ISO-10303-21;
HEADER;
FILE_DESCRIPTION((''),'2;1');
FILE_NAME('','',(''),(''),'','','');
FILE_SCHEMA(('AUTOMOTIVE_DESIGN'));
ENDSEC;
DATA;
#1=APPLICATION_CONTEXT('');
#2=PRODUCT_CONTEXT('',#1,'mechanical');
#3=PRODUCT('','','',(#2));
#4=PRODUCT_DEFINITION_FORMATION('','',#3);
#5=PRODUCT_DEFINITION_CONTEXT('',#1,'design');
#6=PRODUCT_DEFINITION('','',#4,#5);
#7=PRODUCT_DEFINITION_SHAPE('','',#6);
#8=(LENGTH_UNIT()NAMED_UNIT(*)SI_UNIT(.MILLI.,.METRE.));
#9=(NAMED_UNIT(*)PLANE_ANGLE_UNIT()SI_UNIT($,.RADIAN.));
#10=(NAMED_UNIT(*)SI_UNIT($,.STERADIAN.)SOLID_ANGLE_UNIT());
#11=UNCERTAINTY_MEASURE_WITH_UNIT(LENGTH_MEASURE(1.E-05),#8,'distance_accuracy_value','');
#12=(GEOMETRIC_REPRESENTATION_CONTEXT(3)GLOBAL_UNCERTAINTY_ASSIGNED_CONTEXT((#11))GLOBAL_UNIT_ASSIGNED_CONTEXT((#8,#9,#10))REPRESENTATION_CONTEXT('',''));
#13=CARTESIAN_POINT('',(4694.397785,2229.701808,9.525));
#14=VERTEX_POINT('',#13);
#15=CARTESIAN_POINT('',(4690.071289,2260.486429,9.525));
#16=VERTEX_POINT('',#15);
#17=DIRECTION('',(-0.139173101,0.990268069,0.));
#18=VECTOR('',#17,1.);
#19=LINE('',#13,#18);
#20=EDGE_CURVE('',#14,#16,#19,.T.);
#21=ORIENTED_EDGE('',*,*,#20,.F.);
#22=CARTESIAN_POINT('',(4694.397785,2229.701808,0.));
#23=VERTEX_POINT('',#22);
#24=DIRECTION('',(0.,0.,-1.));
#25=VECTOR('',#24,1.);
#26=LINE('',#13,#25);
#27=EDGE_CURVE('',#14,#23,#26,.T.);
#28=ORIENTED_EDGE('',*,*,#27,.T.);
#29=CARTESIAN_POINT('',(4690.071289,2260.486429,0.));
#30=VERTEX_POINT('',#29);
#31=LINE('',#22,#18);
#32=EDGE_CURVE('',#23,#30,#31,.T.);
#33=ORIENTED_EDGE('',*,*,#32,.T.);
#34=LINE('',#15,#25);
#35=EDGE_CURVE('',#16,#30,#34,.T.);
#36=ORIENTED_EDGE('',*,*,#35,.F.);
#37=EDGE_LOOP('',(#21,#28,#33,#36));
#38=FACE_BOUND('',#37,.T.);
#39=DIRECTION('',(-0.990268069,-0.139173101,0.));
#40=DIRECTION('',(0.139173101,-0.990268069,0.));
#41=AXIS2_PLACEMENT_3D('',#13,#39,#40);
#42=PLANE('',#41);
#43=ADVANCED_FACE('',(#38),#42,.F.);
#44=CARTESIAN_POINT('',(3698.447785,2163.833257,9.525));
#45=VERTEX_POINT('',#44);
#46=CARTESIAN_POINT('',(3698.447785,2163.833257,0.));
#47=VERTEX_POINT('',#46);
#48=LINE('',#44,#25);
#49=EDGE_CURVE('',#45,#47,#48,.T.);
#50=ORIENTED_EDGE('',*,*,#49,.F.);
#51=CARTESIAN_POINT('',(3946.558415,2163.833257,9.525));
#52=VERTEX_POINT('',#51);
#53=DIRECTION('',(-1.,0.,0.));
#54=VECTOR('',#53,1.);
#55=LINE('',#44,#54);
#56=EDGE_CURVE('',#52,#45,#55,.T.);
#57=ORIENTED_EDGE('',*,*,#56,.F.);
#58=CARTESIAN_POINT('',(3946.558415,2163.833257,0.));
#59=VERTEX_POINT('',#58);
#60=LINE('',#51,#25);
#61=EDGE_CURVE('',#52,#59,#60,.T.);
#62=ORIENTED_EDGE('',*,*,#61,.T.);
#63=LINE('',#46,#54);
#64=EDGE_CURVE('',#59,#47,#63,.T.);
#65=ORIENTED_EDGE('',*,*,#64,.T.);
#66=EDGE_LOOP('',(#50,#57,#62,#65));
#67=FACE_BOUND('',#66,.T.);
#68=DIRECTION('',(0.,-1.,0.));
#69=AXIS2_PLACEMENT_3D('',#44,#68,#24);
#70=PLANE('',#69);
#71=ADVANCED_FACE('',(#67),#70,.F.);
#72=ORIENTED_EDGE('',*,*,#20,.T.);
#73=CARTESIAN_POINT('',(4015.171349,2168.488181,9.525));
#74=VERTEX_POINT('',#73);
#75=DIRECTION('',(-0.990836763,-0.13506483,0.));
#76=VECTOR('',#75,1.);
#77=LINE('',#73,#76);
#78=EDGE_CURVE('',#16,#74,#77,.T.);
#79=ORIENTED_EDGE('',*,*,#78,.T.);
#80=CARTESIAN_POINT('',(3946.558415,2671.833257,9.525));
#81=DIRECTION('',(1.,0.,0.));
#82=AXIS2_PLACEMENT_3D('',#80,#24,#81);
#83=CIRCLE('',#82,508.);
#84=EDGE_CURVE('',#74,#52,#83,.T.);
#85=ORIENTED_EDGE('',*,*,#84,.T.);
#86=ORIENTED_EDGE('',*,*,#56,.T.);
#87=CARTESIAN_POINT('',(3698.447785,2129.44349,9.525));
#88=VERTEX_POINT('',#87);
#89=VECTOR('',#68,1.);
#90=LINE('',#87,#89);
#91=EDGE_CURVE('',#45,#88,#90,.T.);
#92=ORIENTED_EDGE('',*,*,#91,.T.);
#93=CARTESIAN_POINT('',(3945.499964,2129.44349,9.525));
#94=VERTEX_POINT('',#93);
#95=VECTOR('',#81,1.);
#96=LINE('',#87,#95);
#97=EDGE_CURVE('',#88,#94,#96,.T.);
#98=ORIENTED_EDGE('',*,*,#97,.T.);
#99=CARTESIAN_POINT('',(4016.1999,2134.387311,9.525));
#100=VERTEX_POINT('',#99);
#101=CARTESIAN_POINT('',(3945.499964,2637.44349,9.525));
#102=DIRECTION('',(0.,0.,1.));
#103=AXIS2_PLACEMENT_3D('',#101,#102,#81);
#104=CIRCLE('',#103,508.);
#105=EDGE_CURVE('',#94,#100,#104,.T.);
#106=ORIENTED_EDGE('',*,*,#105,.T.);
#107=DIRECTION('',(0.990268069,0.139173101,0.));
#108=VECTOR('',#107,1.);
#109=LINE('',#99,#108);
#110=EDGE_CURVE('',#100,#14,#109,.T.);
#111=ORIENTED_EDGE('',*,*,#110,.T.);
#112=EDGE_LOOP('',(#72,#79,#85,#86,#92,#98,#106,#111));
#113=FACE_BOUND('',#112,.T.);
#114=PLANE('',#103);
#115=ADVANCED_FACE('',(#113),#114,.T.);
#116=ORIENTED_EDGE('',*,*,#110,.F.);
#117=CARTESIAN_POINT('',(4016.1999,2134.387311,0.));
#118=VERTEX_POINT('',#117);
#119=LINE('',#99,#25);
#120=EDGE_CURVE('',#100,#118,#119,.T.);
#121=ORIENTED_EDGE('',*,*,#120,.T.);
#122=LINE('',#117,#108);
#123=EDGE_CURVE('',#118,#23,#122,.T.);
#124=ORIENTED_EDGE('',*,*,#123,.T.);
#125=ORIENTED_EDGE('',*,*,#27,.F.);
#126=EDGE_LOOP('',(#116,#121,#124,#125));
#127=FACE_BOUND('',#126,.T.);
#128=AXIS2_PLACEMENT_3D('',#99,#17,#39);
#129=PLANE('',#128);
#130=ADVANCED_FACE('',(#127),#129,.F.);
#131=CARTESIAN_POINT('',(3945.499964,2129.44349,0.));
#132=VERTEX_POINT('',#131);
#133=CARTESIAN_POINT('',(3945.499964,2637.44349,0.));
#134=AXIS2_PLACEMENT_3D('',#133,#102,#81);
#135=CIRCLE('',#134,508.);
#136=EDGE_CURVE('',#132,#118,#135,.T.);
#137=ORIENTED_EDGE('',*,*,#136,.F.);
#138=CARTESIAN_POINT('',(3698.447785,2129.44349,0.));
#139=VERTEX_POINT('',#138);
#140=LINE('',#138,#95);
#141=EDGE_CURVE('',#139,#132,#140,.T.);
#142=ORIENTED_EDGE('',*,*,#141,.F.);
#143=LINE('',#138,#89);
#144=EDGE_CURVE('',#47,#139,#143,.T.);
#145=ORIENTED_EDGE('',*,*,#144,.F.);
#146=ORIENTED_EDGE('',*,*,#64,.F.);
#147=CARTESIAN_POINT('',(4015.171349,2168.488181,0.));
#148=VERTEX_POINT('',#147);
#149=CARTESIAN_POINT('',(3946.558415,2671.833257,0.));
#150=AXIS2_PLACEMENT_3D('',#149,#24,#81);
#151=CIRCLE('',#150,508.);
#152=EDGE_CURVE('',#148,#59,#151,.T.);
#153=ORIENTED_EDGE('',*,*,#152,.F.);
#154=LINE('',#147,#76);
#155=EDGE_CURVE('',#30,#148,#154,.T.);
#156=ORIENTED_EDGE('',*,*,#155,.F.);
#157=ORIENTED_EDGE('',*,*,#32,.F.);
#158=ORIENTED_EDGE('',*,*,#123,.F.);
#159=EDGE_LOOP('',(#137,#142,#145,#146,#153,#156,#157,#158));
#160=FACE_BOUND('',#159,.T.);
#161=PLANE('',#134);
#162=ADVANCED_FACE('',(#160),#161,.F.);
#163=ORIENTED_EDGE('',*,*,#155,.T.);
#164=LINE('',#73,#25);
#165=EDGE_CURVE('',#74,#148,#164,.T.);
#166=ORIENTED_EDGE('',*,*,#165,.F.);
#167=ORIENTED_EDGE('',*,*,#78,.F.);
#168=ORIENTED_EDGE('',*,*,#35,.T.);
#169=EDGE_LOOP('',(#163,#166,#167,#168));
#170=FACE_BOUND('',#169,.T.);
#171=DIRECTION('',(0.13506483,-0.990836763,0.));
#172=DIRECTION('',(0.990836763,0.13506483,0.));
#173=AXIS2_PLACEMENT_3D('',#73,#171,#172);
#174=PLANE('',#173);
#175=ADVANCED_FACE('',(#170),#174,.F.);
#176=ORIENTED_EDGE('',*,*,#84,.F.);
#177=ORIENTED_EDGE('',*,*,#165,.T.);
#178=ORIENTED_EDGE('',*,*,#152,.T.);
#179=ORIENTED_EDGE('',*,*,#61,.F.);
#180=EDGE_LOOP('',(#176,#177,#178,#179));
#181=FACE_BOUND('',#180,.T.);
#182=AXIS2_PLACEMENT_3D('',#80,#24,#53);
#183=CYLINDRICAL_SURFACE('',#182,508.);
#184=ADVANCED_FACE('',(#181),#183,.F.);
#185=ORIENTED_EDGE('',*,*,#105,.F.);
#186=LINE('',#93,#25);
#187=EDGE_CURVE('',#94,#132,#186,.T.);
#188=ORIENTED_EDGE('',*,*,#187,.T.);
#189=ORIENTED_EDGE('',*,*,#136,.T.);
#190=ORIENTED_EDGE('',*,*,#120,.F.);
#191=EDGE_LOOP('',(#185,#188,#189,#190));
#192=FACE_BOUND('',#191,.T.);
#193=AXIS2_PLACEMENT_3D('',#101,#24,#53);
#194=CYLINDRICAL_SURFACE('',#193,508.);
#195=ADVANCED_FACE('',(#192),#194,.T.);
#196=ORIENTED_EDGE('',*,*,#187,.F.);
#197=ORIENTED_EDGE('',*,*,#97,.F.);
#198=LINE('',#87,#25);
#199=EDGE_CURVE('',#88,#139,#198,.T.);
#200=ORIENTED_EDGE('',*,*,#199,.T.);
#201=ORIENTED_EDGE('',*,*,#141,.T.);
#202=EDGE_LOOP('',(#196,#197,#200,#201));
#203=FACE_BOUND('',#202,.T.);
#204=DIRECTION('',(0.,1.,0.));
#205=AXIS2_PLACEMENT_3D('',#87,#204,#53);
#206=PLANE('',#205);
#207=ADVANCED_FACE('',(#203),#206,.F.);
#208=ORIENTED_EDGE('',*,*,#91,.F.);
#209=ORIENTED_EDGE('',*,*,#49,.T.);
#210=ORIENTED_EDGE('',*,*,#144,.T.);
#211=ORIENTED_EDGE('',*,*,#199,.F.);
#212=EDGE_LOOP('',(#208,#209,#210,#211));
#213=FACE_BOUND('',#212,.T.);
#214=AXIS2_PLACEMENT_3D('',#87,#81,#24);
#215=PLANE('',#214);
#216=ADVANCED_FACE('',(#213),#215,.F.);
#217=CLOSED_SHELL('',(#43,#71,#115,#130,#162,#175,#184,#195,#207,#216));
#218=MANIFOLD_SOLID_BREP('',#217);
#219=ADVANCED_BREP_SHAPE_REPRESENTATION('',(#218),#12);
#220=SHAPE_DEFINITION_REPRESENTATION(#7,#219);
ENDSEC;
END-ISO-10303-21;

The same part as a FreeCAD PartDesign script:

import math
import FreeCAD as App
import Part
import Sketcher
Q = App.Units.Quantity

doc = App.newDocument("Part")
body = doc.addObject("PartDesign::Body", "Body")

sketch1 = body.newObject("Sketcher::SketchObject", "Sketch")
sketch1.AttachmentSupport = (doc.getObject("XY_Plane"), [""])
sketch1.MapMode = "FlatFace"
sketch1.addGeometry([
    Part.LineSegment(App.Vector(3698, 2164, 0), App.Vector(3698, 2129, 0)),
    Part.LineSegment(App.Vector(3698, 2129, 0), App.Vector(3945, 2129, 0)),
    Part.ArcOfCircle(Part.Circle(App.Vector(3945, 2637, 0), App.Vector(0, 0, 1), 508), math.radians(-90), math.radians(-82)),
    Part.LineSegment(App.Vector(4016, 2134, 0), App.Vector(4694, 2230, 0)),
    Part.LineSegment(App.Vector(4694, 2230, 0), App.Vector(4690, 2260, 0)),
    Part.LineSegment(App.Vector(4690, 2260, 0), App.Vector(4015, 2168, 0)),
    Part.ArcOfCircle(Part.Circle(App.Vector(3947, 2672, 0), App.Vector(0, 0, 1), 508), math.radians(-90), math.radians(-82.24)),
    Part.LineSegment(App.Vector(3947, 2164, 0), App.Vector(3698, 2164, 0)),
], False)
sketch1.addConstraint([
    Sketcher.Constraint("Coincident", 0, 2, 1, 1),
    Sketcher.Constraint("Tangent", 1, 2, 2, 1),
    Sketcher.Constraint("Tangent", 2, 2, 3, 1),
    Sketcher.Constraint("Coincident", 3, 2, 4, 1),
    Sketcher.Constraint("Coincident", 4, 2, 5, 1),
    Sketcher.Constraint("Tangent", 5, 2, 6, 2),
    Sketcher.Constraint("Tangent", 6, 1, 7, 1),
    Sketcher.Constraint("Coincident", 7, 2, 0, 1),
    Sketcher.Constraint("Vertical", 0),
    Sketcher.Constraint("Horizontal", 1),
    Sketcher.Constraint("Horizontal", 7),
    Sketcher.Constraint("Equal", 2, 6),
    Sketcher.Constraint("Perpendicular", 3, 4),
    Sketcher.Constraint("Radius", 2, Q("20 in")),
    Sketcher.Constraint("Angle", 3, Q("8 deg")),
    Sketcher.Constraint("Distance", 5, Q("681.141399 mm")),
    Sketcher.Constraint("DistanceX", 1, 1, 1, 2, Q("247.05218 mm")),
    Sketcher.Constraint("DistanceX", 7, 2, 7, 1, Q("248.110631 mm")),
    Sketcher.Constraint("DistanceX", 0, 2, 3, 2, Q("995.95 mm")),
    Sketcher.Constraint("Distance", 4, Q("31.087159 mm")),
    Sketcher.Constraint("DistanceY", -1, 1, 2, 3, Q("2637.44349 mm")),
    Sketcher.Constraint("DistanceX", -1, 1, 4, 2, Q("4690.071289 mm")),
])
pad1 = body.newObject("PartDesign::Pad", "Pad")
pad1.Profile = sketch1
pad1.Length = Q("0.375 in")

doc.recompute()
